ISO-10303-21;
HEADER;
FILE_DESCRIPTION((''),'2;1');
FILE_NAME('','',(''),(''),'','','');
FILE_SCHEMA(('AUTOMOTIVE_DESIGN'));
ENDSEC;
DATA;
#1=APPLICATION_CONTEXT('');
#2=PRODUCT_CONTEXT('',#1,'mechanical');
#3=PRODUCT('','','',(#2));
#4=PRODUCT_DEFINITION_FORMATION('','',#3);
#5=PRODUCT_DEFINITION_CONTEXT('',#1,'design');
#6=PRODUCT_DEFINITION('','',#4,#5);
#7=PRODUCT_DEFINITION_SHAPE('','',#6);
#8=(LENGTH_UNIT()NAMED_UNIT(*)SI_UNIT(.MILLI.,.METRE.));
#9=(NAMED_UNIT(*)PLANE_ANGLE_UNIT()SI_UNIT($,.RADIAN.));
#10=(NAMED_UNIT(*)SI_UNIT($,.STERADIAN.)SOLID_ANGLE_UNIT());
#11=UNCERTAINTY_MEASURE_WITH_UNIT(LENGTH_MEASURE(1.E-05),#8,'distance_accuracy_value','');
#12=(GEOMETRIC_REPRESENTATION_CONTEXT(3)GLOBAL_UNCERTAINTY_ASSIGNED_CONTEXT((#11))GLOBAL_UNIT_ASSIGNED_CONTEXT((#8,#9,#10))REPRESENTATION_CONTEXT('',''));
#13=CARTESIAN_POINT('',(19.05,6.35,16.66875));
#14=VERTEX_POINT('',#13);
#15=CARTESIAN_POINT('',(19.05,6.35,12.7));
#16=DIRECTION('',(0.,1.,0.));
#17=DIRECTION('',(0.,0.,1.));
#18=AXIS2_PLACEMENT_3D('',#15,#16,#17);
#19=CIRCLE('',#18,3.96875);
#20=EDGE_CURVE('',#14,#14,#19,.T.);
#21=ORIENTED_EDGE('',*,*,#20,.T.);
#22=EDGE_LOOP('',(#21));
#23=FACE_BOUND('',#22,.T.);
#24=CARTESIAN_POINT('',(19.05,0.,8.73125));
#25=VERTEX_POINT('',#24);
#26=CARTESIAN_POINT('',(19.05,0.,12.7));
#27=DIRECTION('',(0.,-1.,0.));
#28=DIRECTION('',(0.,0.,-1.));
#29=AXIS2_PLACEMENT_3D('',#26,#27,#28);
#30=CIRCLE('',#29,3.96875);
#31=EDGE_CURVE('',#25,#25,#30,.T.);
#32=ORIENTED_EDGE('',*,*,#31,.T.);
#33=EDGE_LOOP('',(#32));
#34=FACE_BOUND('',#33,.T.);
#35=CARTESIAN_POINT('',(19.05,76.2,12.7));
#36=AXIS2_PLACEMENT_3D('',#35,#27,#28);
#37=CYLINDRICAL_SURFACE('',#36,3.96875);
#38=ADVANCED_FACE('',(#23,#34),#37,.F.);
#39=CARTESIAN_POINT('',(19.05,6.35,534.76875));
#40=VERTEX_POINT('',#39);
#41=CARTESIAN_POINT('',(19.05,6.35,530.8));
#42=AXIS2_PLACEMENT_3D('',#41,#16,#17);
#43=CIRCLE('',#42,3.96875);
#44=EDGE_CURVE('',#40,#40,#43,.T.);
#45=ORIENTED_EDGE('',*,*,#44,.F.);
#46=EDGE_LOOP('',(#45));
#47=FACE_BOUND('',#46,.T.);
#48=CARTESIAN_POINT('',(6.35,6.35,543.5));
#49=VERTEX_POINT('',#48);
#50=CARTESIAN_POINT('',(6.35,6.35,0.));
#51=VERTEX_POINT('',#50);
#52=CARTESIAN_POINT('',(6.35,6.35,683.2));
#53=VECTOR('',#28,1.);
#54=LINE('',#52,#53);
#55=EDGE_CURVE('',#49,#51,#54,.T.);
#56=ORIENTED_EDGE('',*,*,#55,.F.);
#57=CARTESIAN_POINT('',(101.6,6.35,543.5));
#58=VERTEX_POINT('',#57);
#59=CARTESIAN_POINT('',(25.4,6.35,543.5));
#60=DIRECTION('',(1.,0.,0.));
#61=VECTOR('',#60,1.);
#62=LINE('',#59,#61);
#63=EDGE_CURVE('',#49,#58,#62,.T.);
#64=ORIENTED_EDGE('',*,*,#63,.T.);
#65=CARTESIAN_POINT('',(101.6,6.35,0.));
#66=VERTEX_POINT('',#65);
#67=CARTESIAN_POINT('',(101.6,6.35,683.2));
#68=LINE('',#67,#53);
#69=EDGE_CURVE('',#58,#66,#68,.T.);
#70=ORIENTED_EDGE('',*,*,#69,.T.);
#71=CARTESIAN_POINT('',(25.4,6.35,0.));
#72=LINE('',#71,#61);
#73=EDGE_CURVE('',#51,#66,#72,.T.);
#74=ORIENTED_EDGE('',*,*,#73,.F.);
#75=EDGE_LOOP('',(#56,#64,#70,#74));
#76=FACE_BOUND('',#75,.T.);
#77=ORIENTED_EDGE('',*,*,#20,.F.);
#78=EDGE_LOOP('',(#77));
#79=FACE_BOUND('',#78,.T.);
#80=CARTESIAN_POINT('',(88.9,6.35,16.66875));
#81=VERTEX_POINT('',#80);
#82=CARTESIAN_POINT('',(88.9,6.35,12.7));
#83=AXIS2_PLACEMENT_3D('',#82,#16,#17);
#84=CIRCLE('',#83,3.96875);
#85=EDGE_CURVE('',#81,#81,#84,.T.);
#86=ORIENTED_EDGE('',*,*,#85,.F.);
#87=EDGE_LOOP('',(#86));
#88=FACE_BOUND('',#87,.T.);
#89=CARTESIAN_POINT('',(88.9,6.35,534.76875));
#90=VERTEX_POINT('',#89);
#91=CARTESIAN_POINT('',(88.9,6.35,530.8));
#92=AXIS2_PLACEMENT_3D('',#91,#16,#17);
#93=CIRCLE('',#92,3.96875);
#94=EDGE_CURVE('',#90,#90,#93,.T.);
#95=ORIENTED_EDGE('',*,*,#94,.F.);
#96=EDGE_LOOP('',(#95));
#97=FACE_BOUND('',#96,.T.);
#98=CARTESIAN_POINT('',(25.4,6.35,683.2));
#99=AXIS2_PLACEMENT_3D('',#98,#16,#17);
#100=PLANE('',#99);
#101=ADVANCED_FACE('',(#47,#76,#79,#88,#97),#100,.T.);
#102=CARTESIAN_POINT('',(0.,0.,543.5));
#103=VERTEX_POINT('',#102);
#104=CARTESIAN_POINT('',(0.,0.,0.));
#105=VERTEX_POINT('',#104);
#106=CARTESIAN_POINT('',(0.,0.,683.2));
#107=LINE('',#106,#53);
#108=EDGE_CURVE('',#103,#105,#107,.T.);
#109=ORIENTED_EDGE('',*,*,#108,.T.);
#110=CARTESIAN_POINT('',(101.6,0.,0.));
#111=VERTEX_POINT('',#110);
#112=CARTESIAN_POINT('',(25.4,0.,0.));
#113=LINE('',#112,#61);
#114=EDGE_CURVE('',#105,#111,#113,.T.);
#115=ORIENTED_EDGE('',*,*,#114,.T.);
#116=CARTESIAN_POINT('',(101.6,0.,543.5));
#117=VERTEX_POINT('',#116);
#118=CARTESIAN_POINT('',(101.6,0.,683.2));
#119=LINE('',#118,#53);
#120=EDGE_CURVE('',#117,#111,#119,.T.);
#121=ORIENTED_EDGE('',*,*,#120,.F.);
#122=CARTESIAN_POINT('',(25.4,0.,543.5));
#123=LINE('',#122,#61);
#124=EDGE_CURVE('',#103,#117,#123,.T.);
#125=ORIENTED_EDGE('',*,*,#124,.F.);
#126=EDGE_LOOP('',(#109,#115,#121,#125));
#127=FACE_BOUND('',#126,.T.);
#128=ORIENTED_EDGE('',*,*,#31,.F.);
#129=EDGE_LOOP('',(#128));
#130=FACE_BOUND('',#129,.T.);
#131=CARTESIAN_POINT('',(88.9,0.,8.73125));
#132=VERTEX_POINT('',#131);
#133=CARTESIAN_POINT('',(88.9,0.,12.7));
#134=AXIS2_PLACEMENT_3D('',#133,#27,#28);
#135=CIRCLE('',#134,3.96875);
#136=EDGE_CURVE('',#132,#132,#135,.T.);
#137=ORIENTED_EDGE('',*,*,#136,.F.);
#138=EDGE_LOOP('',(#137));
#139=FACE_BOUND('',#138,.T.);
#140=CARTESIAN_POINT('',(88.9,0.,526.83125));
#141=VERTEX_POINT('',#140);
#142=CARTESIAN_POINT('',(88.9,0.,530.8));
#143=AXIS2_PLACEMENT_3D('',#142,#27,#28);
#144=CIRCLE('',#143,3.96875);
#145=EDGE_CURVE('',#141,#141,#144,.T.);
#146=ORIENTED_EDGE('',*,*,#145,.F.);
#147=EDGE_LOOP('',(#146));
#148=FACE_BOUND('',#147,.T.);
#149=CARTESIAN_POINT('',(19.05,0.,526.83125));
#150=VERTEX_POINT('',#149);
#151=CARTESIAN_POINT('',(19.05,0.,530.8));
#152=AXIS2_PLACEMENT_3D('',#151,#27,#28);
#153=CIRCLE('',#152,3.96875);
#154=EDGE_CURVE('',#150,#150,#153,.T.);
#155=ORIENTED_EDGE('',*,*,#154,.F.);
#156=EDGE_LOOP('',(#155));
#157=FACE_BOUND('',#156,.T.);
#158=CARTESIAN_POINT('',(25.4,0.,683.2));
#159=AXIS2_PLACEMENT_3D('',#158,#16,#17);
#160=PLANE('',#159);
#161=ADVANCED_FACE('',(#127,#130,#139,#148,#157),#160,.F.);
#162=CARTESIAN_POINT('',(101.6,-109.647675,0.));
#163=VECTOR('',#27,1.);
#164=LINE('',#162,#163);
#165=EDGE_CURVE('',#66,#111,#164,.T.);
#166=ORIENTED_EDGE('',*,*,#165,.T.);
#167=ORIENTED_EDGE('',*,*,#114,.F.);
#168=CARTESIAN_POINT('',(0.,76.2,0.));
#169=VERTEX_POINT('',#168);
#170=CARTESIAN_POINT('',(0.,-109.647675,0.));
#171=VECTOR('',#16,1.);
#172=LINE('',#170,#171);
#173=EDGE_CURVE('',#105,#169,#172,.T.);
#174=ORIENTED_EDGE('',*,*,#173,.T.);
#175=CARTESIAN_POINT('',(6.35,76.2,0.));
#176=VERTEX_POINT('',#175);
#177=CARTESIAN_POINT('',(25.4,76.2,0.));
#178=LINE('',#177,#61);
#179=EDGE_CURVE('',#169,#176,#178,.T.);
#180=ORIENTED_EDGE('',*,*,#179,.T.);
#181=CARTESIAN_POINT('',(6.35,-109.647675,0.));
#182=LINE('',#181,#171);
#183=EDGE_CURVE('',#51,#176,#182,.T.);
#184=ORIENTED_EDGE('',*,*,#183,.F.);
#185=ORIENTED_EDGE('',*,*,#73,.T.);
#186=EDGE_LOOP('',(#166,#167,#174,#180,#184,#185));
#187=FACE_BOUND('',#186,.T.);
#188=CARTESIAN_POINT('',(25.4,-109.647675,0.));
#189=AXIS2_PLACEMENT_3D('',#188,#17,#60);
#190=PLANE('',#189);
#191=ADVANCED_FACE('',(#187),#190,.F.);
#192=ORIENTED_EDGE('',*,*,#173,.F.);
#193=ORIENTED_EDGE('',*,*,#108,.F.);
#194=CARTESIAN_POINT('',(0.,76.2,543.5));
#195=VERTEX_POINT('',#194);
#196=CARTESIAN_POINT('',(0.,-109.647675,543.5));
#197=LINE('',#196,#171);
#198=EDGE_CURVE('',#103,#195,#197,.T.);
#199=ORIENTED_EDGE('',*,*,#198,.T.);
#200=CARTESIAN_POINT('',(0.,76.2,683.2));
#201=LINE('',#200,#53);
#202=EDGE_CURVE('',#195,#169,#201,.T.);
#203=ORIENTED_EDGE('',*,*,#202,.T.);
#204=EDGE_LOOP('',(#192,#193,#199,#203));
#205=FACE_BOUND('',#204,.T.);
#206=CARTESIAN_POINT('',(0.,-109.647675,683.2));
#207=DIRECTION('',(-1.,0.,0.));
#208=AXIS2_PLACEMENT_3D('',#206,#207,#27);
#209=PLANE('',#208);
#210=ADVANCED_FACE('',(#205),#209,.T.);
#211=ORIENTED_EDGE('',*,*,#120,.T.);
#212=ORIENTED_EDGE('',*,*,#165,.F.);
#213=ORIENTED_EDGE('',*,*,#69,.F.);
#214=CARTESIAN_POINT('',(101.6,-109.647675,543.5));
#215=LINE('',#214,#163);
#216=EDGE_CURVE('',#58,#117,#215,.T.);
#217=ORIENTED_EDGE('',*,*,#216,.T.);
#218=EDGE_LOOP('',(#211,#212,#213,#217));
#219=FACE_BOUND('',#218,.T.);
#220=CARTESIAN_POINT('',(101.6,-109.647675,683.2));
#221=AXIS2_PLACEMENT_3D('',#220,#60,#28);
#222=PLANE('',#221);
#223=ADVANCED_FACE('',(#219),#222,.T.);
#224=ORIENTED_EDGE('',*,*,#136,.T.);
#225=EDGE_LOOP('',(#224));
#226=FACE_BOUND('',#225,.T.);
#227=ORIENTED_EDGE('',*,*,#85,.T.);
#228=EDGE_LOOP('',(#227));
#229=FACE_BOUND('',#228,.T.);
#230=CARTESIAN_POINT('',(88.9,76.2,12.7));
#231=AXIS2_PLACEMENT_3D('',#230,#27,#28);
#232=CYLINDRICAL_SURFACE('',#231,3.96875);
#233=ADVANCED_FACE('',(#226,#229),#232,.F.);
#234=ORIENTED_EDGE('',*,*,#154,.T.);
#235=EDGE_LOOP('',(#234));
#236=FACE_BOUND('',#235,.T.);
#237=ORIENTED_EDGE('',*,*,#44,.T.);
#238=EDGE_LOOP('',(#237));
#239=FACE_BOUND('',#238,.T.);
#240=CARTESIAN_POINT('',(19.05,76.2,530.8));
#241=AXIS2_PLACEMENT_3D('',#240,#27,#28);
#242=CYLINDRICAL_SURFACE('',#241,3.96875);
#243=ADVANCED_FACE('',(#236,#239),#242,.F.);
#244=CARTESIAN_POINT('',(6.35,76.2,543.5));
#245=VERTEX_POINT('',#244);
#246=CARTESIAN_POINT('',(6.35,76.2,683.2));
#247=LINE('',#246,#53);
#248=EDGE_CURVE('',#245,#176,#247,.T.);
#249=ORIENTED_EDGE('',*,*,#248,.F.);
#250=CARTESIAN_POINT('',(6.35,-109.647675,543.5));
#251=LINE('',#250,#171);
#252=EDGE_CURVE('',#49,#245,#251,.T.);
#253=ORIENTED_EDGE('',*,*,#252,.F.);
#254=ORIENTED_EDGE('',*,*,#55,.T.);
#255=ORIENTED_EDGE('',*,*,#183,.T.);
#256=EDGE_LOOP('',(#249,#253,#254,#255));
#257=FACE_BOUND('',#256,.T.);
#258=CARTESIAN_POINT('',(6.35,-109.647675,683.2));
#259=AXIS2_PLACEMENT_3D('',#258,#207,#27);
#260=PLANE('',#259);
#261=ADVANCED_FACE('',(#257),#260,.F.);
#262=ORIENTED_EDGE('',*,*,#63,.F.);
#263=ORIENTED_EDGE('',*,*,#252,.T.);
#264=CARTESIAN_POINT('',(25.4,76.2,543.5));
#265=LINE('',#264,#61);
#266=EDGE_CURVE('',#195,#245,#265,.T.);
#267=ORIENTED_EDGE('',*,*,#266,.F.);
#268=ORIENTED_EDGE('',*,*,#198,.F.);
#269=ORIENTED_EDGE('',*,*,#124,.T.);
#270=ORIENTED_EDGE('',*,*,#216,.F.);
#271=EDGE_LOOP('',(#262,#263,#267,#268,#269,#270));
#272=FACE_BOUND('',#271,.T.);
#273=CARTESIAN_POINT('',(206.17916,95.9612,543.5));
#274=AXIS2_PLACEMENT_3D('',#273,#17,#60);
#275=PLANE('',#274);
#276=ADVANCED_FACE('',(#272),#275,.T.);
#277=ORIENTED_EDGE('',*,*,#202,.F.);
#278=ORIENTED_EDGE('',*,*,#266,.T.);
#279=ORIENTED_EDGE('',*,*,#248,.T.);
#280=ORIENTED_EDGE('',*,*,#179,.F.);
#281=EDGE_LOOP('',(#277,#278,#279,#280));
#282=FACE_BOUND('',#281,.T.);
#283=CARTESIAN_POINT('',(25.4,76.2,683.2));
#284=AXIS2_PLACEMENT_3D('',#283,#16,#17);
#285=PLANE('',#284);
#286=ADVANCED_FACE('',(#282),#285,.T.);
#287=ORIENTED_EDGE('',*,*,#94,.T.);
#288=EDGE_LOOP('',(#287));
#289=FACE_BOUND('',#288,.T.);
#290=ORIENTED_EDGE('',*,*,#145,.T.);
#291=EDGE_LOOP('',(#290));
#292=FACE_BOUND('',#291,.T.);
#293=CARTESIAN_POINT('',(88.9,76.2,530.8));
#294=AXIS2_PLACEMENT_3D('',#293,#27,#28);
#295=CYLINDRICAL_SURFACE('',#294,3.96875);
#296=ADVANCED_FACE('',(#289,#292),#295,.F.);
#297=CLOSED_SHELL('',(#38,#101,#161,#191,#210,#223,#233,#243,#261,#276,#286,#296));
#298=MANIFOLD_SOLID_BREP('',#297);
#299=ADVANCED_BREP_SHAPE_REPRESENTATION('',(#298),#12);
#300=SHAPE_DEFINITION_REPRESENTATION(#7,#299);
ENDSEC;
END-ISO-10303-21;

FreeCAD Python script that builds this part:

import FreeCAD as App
import Part
import Sketcher

V = App.Vector
Q = App.Units.Quantity


def add_polygon(sketch, points):
    """Adds a closed chain of lines whose ends are joined by coincident constraints."""
    first, n = sketch.GeometryCount, len(points)
    for a, b in zip(points, points[1:] + points[:1]):
        sketch.addGeometry(Part.LineSegment(App.Vector(*a, 0), App.Vector(*b, 0)), False)
    for i in range(n):
        sketch.addConstraint(Sketcher.Constraint("Coincident", first + i, 2, first + (i + 1) % n, 1))

doc = App.newDocument("Part")
params = doc.addObject("Spreadsheet::Sheet", "Params")
for row, (alias, value) in enumerate([
    ("sketch1_width", "4 in"),
    ("sketch1_height", "3 in"),
    ("sketch1_width2", "3.75 in"),
    ("pad1_length", "543.5 mm"),
    ("sketch2_diameter", "0.3125 in"),
], start=1):
    params.set(f"A{row}", alias)
    params.set(f"B{row}", "=" + value)
    params.setAlias(f"B{row}", alias)

body = doc.addObject("PartDesign::Body", "Body")

sketch1 = doc.addObject("Sketcher::SketchObject", "Sketch")
body.addObject(sketch1)
sketch1.AttachmentSupport = (doc.XY_Plane, [""])
sketch1.MapMode = "FlatFace"
add_polygon(sketch1, [(0, 76), (0, 0), (102, 0), (102, 6), (6, 6), (6, 76)])
sketch1.addConstraint(Sketcher.Constraint("Vertical", 0))
sketch1.addConstraint(Sketcher.Constraint("Horizontal", 1))
sketch1.addConstraint(Sketcher.Constraint("Vertical", 2))
sketch1.addConstraint(Sketcher.Constraint("Horizontal", 3))
sketch1.addConstraint(Sketcher.Constraint("Vertical", 4))
sketch1.addConstraint(Sketcher.Constraint("Horizontal", 5))
sketch1.addConstraint(Sketcher.Constraint("Coincident", 0, 2, -1, 1))
sketch1.addConstraint(Sketcher.Constraint("Equal", 5, 2))
sketch1.addConstraint(Sketcher.Constraint("DistanceX", 1, 1, 1, 2, Q("4 in")))
sketch1.addConstraint(Sketcher.Constraint("DistanceY", 0, 2, 0, 1, Q("3 in")))
sketch1.addConstraint(Sketcher.Constraint("DistanceX", 3, 2, 3, 1, Q("3.75 in")))
sketch1.setExpression("Constraints[14]", "Params.sketch1_width")
sketch1.setExpression("Constraints[15]", "Params.sketch1_height")
sketch1.setExpression("Constraints[16]", "Params.sketch1_width2")
pad1 = doc.addObject("PartDesign::Pad", "Pad")
body.addObject(pad1)
pad1.Profile = sketch1
pad1.setExpression("Length", "Params.pad1_length")

sketch2 = doc.addObject("Sketcher::SketchObject", "Sketch001")
body.addObject(sketch2)
sketch2.AttachmentSupport = (doc.XZ_Plane, [""])
sketch2.MapMode = "FlatFace"
sketch2.addGeometry(Part.Circle(V(88.9, 530.8, 0), V(0, 0, 1), 4), False)
sketch2.addGeometry(Part.Circle(V(19.1, 530.8, 0), V(0, 0, 1), 4), False)
sketch2.addGeometry(Part.Circle(V(19.1, 12.7, 0), V(0, 0, 1), 4), False)
sketch2.addGeometry(Part.Circle(V(88.9, 12.7, 0), V(0, 0, 1), 4), False)
sketch2.addConstraint(Sketcher.Constraint("Equal", 0, 1))
sketch2.addConstraint(Sketcher.Constraint("Equal", 1, 2))
sketch2.addConstraint(Sketcher.Constraint("Equal", 2, 3))
sketch2.addConstraint(Sketcher.Constraint("Horizontal", 0, 3, 1, 3))
sketch2.addConstraint(Sketcher.Constraint("Horizontal", 2, 3, 3, 3))
sketch2.addConstraint(Sketcher.Constraint("Vertical", 1, 3, 2, 3))
sketch2.addConstraint(Sketcher.Constraint("Vertical", 0, 3, 3, 3))
sketch2.addConstraint(Sketcher.Constraint("Diameter", 0, Q("0.3125 in")))
sketch2.addConstraint(Sketcher.Constraint("DistanceX", -1, 1, 0, 3, Q("3.5 in")))
sketch2.addConstraint(Sketcher.Constraint("DistanceY", -1, 1, 2, 3, Q("0.5 in")))
sketch2.addConstraint(Sketcher.Constraint("DistanceX", -1, 1, 1, 3, Q("0.75 in")))
sketch2.addConstraint(Sketcher.Constraint("DistanceY", -1, 1, 0, 3, 530.8))
sketch2.setExpression("Constraints[7]", "Params.sketch2_diameter")
pocket1 = doc.addObject("PartDesign::Pocket", "Pocket")
body.addObject(pocket1)
pocket1.Profile = sketch2
pocket1.Type = "ThroughAll"

doc.recompute()
